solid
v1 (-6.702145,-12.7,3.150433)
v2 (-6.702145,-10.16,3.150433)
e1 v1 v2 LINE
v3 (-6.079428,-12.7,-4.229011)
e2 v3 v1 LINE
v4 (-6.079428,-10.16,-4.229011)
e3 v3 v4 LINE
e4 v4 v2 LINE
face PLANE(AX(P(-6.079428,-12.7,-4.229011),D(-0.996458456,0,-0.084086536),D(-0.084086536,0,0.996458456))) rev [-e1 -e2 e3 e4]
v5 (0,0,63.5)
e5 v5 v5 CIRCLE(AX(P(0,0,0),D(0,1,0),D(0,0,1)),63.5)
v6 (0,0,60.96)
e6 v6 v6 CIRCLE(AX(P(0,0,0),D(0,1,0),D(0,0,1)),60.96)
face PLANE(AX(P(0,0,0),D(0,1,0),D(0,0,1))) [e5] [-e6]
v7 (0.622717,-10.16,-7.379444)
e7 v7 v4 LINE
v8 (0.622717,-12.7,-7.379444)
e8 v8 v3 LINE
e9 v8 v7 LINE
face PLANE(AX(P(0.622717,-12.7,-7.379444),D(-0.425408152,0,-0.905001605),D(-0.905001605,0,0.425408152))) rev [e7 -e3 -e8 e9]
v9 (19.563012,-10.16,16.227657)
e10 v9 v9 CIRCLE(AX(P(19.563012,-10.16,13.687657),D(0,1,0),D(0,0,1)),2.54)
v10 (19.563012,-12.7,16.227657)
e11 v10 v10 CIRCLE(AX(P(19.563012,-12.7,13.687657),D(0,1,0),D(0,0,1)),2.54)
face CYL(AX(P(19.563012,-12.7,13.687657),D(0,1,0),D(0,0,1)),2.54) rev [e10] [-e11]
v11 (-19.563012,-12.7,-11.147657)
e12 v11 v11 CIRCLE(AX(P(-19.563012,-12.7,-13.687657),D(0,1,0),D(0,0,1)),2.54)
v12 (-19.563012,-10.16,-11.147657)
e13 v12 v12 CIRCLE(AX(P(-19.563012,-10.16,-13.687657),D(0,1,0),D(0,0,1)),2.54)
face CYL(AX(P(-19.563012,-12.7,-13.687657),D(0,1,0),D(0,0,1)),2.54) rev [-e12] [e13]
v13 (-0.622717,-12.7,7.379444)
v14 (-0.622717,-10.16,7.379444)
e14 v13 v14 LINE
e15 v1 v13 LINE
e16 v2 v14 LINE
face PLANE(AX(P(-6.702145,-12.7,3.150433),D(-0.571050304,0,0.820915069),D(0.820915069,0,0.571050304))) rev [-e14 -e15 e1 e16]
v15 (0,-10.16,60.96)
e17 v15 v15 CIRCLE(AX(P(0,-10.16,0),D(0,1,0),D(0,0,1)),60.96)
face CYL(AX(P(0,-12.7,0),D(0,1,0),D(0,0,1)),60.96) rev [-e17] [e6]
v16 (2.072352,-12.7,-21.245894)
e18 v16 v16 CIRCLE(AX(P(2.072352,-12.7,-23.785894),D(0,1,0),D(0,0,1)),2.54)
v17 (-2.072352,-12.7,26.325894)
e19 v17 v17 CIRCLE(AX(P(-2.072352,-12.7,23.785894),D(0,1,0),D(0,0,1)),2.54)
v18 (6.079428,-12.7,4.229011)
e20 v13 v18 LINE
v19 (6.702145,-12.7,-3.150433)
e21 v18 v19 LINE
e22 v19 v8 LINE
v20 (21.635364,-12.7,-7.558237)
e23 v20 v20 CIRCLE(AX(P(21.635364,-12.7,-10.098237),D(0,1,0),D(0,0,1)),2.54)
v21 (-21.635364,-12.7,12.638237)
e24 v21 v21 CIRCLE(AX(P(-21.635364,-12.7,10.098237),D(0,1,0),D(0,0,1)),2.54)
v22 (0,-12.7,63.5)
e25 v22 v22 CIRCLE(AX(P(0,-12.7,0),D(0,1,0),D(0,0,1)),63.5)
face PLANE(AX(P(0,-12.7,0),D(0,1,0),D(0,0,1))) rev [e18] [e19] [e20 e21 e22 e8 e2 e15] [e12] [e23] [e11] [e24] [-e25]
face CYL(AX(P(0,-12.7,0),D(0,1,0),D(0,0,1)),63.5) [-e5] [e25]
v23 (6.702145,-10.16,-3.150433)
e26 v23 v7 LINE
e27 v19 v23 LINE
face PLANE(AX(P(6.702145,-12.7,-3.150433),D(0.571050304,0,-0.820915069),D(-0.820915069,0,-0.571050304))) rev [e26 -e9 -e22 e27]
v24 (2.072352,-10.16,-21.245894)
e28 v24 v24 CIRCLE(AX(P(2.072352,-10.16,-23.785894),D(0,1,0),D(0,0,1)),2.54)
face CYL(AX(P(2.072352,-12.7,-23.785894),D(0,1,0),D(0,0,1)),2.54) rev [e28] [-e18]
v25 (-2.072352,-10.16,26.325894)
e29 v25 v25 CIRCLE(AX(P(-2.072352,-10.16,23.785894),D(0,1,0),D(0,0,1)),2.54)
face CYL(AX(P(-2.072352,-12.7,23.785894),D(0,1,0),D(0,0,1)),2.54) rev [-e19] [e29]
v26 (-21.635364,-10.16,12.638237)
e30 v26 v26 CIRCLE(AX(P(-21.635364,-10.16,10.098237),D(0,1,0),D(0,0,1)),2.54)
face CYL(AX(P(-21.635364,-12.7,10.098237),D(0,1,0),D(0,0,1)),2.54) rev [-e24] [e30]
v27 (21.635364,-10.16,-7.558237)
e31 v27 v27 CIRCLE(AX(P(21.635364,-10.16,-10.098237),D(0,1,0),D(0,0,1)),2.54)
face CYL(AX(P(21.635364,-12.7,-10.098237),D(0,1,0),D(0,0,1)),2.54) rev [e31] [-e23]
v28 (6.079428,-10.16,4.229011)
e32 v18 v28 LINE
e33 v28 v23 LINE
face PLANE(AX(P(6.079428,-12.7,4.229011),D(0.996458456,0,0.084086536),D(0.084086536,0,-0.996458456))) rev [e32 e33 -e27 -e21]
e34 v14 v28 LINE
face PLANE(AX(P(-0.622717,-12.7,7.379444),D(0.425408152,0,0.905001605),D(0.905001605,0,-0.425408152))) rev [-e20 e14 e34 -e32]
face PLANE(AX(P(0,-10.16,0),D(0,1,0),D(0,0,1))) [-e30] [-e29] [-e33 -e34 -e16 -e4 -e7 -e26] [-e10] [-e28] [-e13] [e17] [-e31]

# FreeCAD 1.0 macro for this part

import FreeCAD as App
import Part
import Sketcher
Q = App.Units.Quantity


def faces_at(feature, points):
    """Names of the faces that lie closest to the given points."""
    faces = feature.Shape.Faces
    near = lambda p: min(range(len(faces)), key=lambda i: faces[i].distToShape(Part.Vertex(*p))[0])
    return sorted({f"Face{near(p) + 1}" for p in points})

doc = App.newDocument("Part")
params = doc.addObject("Spreadsheet::Sheet", "Params")
for row, (alias, value) in enumerate([
    ("sketch1_diameter", "5 in"),
    ("pad1_length", "0.5 in"),
    ("sketch2_diameter", "0.2 in"),
    ("thickness_wall", "0.1 in"),
], start=1):
    params.set(f"A{row}", alias)
    params.set(f"B{row}", "=" + value)
    params.setAlias(f"B{row}", alias)

body = doc.addObject("PartDesign::Body", "Body")

# Sketch on XZ plane
sketch1 = body.newObject("Sketcher::SketchObject", "Sketch")
sketch1.AttachmentSupport = (doc.getObject("XZ_Plane"), [""])
sketch1.MapMode = "FlatFace"
sketch1.addGeometry(Part.Circle(App.Vector(0, 0, 0), App.Vector(0, 0, 1), 63.5), False)
sketch1.addConstraint([
    Sketcher.Constraint("Coincident", 0, 3, -1, 1),
    Sketcher.Constraint("Diameter", 0, Q("5 in")),
])
sketch1.setExpression("Constraints[1]", "Params.sketch1_diameter")
pad1 = body.newObject("PartDesign::Pad", "Pad")
pad1.Profile = sketch1
pad1.setExpression("Length", "Params.pad1_length")

# Sketch on XZ plane
sketch2 = body.newObject("Sketcher::SketchObject", "Sketch001")
sketch2.AttachmentSupport = (doc.getObject("XZ_Plane"), [""])
sketch2.MapMode = "FlatFace"
sketch2.addGeometry([
    Part.Circle(App.Vector(19.563012, 13.687657, 0), App.Vector(0, 0, 1), 2.54),  # 0
    Part.Circle(App.Vector(21.635364, -10.098237, 0), App.Vector(0, 0, 1), 2.54),  # 1
    Part.Circle(App.Vector(2.072352, -23.785894, 0), App.Vector(0, 0, 1), 2.54),  # 2
    Part.Circle(App.Vector(-19.563012, -13.687657, 0), App.Vector(0, 0, 1), 2.54),  # 3
    Part.Circle(App.Vector(-21.635364, 10.098237, 0), App.Vector(0, 0, 1), 2.54),  # 4
    Part.Circle(App.Vector(-2.072352, 23.785894, 0), App.Vector(0, 0, 1), 2.54),  # 5
], False)
sketch2.addConstraint([
    Sketcher.Constraint("Equal", 0, 1),
    Sketcher.Constraint("Equal", 1, 2),
    Sketcher.Constraint("Equal", 2, 3),
    Sketcher.Constraint("Equal", 3, 4),
    Sketcher.Constraint("Equal", 4, 5),
    Sketcher.Constraint("Symmetric", 0, 3, 3, 3, -1, 1),
    Sketcher.Constraint("Symmetric", 1, 3, 4, 3, -1, 1),
    Sketcher.Constraint("Symmetric", 2, 3, 5, 3, -1, 1),
    Sketcher.Constraint("Diameter", 0, Q("0.2 in")),
    Sketcher.Constraint("DistanceX", -1, 1, 0, 3, Q("19.563012 mm")),
    Sketcher.Constraint("DistanceX", 2, 3, 1, 3, Q("19.563012 mm")),
    Sketcher.Constraint("DistanceX", 2, 3, 0, 3, Q("17.49066 mm")),
    Sketcher.Constraint("DistanceY", 2, 3, 0, 3, Q("37.47355 mm")),
    Sketcher.Constraint("DistanceY", 3, 3, 1, 3, Q("3.589419 mm")),
    Sketcher.Constraint("DistanceY", -1, 1, 0, 3, Q("13.687657 mm")),
])
sketch2.setExpression("Constraints[8]", "Params.sketch2_diameter")
pocket1 = body.newObject("PartDesign::Pocket", "Pocket")
pocket1.Profile = sketch2
pocket1.Type = "ThroughAll"
pocket1.Reversed = True

# Sketch on XZ plane
sketch3 = body.newObject("Sketcher::SketchObject", "Sketch002")
sketch3.AttachmentSupport = (doc.getObject("XZ_Plane"), [""])
sketch3.MapMode = "FlatFace"
sketch3.addGeometry([
    Part.LineSegment(App.Vector(-6.702145, 3.150433, 0), App.Vector(-0.622717, 7.379444, 0)),  # 0
    Part.LineSegment(App.Vector(-0.622717, 7.379444, 0), App.Vector(6.079428, 4.229011, 0)),  # 1
    Part.LineSegment(App.Vector(6.079428, 4.229011, 0), App.Vector(6.702145, -3.150433, 0)),  # 2
    Part.LineSegment(App.Vector(6.702145, -3.150433, 0), App.Vector(0.622717, -7.379444, 0)),  # 3
    Part.LineSegment(App.Vector(0.622717, -7.379444, 0), App.Vector(-6.079428, -4.229011, 0)),  # 4
    Part.LineSegment(App.Vector(-6.079428, -4.229011, 0), App.Vector(-6.702145, 3.150433, 0)),  # 5
], False)
sketch3.addConstraint([
    Sketcher.Constraint("Coincident", 0, 2, 1, 1),
    Sketcher.Constraint("Coincident", 1, 2, 2, 1),
    Sketcher.Constraint("Coincident", 2, 2, 3, 1),
    Sketcher.Constraint("Coincident", 3, 2, 4, 1),
    Sketcher.Constraint("Coincident", 4, 2, 5, 1),
    Sketcher.Constraint("Coincident", 5, 2, 0, 1),
    Sketcher.Constraint("Symmetric", 0, 2, 3, 2, -1, 1),
    Sketcher.Constraint("Symmetric", 1, 2, 4, 2, -1, 1),
    Sketcher.Constraint("Symmetric", 2, 2, 5, 2, -1, 1),
    Sketcher.Constraint("Equal", 0, 1),
    Sketcher.Constraint("Equal", 1, 2),
    Sketcher.Constraint("Distance", 0, Q("7.405672 mm")),
    Sketcher.Constraint("DistanceY", -1, 1, 1, 2, Q("4.229011 mm")),
    Sketcher.Constraint("DistanceY", 3, 2, 2, 2, Q("4.229011 mm")),
    Sketcher.Constraint("DistanceX", 3, 2, 1, 2, Q("5.45671 mm")),
])
pocket2 = body.newObject("PartDesign::Pocket", "Pocket001")
pocket2.Profile = sketch3
pocket2.Type = "ThroughAll"
pocket2.Reversed = True
doc.recompute()

thickness = body.newObject("PartDesign::Thickness", "Thickness")
thickness.Base = (pocket2, faces_at(pocket2, [
    (-2.072, -6.35, 21.246),
    (19.563, -6.35, 11.148),
    (-25.4, 0, -25.4),
    (-21.635, -6.35, 7.558),
    (-19.563, -6.35, -16.228),
    (2.072, -6.35, -26.326),
    (21.635, -6.35, -12.638),
    (-6.391, -6.35, -0.539),
    (-2.728, -6.35, -5.804),
    (3.662, -6.35, -5.265),
    (6.391, -6.35, 0.539),
    (2.728, -6.35, 5.804),
    (-3.662, -6.35, 5.265),
]))
thickness.setExpression("Value", "Params.thickness_wall")
thickness.Reversed = True
thickness.Join = "Intersection"

doc.recompute()
